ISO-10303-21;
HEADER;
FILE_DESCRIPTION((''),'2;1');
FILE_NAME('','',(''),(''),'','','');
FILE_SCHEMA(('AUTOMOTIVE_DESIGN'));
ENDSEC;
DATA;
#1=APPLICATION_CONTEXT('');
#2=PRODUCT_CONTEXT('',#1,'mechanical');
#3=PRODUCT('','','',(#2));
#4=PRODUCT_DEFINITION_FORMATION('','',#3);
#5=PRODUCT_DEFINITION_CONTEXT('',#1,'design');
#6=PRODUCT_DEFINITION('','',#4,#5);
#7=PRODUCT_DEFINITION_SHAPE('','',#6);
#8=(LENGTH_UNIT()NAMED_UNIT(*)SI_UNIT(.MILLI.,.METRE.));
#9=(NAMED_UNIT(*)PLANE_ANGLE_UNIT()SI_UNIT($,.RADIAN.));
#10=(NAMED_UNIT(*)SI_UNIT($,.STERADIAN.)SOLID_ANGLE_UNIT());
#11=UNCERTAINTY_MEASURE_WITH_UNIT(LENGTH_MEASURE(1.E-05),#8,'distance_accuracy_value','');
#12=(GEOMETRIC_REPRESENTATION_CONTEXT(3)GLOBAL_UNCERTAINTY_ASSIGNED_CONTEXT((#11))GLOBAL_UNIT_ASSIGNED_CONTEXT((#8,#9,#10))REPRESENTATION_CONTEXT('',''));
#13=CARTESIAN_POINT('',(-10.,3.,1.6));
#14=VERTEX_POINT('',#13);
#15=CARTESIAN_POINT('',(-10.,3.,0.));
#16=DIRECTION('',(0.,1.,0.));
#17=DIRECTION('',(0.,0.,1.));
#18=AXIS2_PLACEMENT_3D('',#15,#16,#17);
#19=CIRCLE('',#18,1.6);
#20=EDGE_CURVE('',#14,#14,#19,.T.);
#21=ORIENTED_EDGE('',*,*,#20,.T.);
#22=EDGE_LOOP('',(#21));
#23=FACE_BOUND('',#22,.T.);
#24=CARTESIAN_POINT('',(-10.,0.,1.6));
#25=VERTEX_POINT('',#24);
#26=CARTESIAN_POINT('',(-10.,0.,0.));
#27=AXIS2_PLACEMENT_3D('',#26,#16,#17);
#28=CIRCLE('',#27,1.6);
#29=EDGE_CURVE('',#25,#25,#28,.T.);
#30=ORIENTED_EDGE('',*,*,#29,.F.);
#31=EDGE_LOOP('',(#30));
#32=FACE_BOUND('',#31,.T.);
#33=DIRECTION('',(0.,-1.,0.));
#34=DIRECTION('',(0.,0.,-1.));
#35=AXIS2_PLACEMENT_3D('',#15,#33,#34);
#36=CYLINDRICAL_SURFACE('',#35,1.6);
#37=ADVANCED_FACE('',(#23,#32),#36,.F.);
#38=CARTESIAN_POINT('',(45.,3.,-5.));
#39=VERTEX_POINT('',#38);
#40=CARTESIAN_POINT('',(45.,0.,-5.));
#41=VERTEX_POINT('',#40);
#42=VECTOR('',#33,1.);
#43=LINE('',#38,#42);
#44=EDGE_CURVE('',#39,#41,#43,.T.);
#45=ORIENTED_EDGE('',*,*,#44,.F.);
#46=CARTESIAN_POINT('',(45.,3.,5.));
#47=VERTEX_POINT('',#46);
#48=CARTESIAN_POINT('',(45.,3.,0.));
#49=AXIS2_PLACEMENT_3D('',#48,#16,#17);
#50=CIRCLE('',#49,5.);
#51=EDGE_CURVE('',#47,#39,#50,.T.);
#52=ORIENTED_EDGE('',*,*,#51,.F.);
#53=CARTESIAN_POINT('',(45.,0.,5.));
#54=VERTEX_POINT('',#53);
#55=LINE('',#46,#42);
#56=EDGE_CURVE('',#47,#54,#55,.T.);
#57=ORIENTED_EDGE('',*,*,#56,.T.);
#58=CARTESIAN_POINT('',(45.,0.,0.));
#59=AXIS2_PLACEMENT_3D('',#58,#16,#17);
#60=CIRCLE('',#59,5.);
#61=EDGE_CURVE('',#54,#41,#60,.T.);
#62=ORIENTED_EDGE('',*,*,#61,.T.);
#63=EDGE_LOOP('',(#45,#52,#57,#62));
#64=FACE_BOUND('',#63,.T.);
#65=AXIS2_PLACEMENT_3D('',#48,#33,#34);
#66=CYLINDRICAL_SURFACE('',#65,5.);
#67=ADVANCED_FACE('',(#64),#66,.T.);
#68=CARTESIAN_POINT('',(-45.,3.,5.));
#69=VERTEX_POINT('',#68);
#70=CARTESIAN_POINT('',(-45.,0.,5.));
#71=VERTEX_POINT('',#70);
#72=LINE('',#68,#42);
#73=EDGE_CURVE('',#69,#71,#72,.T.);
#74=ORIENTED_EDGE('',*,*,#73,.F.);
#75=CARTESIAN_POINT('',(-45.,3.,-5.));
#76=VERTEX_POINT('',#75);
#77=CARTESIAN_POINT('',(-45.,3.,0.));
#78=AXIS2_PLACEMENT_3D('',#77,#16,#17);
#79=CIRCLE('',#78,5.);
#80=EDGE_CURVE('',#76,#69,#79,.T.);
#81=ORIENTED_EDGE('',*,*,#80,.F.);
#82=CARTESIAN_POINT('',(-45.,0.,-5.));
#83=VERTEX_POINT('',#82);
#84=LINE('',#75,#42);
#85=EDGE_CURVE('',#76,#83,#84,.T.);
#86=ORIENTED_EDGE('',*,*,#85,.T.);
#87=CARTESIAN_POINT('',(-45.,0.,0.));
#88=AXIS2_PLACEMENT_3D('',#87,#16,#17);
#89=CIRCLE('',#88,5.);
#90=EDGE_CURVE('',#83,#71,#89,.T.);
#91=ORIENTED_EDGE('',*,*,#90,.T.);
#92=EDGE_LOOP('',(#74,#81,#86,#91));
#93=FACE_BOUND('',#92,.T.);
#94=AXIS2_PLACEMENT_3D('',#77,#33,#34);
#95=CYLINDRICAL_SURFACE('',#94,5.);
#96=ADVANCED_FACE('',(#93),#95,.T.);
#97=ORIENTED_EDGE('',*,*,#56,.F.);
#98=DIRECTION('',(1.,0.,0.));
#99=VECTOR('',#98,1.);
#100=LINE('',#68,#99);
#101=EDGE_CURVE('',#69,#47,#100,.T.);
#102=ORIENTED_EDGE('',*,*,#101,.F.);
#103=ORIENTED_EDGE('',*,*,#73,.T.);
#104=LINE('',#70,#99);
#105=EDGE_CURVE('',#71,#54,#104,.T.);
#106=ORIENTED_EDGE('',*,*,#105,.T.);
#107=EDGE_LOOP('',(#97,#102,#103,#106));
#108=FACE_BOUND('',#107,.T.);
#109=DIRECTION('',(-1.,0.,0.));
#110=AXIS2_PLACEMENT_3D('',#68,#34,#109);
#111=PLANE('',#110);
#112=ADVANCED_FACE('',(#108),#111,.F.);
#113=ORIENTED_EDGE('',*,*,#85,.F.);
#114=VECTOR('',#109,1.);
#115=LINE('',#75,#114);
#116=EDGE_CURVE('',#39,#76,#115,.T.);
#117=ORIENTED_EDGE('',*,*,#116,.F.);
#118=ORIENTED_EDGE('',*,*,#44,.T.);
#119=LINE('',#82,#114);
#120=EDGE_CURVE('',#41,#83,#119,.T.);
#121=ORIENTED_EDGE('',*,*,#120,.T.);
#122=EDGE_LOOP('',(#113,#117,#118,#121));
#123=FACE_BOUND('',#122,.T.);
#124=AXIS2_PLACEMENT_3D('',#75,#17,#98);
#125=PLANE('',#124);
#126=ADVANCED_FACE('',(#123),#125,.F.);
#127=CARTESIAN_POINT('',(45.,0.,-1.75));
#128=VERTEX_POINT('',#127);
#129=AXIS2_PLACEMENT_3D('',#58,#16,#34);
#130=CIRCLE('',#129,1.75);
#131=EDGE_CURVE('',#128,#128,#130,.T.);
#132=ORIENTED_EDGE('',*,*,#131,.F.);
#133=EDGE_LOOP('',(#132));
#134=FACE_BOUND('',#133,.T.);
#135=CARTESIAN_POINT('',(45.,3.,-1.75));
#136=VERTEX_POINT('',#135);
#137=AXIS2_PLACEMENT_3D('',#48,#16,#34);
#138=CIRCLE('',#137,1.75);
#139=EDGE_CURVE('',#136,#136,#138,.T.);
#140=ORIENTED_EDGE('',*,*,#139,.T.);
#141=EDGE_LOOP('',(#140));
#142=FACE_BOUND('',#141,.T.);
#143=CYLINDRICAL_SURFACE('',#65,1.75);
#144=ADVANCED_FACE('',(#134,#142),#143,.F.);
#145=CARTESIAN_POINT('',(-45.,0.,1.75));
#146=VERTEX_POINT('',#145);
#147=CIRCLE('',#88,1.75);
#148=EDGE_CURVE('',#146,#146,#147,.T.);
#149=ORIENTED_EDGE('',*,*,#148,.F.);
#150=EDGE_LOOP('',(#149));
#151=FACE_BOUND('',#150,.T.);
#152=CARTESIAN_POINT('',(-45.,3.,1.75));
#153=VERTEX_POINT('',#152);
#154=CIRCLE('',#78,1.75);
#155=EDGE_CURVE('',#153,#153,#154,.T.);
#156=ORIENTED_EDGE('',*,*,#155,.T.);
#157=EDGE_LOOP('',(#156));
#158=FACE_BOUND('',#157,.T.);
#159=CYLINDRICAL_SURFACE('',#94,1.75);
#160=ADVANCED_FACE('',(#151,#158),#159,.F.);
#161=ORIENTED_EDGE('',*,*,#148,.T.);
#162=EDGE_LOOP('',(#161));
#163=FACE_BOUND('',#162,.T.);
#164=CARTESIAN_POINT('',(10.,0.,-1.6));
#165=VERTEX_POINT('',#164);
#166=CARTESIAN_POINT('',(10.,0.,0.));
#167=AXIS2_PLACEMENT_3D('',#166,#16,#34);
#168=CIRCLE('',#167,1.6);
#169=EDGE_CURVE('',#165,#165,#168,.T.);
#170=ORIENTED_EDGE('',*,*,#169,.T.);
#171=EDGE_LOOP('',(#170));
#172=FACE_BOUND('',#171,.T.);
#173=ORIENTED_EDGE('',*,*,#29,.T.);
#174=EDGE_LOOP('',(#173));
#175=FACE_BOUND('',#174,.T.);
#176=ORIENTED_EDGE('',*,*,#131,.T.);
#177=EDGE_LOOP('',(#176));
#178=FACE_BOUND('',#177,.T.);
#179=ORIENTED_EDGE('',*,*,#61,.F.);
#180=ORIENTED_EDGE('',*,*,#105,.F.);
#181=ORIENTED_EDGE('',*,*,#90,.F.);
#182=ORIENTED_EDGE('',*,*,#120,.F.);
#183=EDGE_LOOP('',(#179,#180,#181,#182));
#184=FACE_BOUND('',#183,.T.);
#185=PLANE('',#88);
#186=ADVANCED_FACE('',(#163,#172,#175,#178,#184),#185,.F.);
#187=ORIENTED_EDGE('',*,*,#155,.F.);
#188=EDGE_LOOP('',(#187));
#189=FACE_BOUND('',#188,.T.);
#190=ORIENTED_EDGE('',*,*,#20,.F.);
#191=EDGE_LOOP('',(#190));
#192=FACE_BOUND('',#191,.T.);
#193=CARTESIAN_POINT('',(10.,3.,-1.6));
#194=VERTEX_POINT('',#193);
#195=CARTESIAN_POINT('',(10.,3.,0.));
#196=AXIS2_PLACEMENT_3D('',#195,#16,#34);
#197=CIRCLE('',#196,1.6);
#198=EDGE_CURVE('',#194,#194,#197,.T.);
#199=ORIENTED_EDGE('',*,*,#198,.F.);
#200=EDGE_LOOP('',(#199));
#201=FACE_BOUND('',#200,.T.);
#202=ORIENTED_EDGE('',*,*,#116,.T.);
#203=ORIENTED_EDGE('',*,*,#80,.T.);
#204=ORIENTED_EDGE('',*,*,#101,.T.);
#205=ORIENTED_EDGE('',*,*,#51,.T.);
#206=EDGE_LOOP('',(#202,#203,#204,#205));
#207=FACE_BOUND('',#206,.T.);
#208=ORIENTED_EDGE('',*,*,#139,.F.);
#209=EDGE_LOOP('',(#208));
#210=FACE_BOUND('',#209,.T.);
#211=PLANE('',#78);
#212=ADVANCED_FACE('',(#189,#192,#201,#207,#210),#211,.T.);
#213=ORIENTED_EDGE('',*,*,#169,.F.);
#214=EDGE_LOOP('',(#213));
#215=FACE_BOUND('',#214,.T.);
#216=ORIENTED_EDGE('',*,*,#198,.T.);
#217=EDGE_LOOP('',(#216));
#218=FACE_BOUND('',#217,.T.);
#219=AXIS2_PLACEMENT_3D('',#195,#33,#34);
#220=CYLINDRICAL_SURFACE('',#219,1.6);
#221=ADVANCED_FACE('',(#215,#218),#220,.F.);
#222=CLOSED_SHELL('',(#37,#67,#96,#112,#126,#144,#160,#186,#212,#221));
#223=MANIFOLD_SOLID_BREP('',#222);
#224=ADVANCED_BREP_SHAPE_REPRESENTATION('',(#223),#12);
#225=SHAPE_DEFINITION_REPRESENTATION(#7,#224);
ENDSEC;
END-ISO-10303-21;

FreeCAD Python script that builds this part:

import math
import FreeCAD as App
import Part
import Sketcher

V = App.Vector

doc = App.newDocument("Part")
body = doc.addObject("PartDesign::Body", "Body")

sketch1 = body.newObject("Sketcher::SketchObject", "Sketch")
sketch1.AttachmentSupport = (doc.getObject("XZ_Plane"), [""])
sketch1.MapMode = "FlatFace"
sketch1.addGeometry([
    Part.LineSegment(V(45, -5, 0), V(-45, -5, 0)),
    Part.ArcOfCircle(Part.Circle(V(-45, 0, 0), V(0, 0, 1), 5), math.radians(90), math.radians(270)),
    Part.LineSegment(V(-45, 5, 0), V(45, 5, 0)),
    Part.ArcOfCircle(Part.Circle(V(45, 0, 0), V(0, 0, 1), 5), math.radians(-90), math.radians(90)),
    Part.Circle(V(45, 0, 0), V(0, 0, 1), 1.8),
    Part.Circle(V(10, 0, 0), V(0, 0, 1), 1.6),
    Part.Circle(V(-10, 0, 0), V(0, 0, 1), 1.6),
    Part.Circle(V(-45, 0, 0), V(0, 0, 1), 1.8),
], False)
sketch1.addConstraint([
    Sketcher.Constraint("Tangent", 0, 2, 1, 2),
    Sketcher.Constraint("Tangent", 1, 1, 2, 1),
    Sketcher.Constraint("Tangent", 2, 2, 3, 2),
    Sketcher.Constraint("Tangent", 3, 1, 0, 1),
    Sketcher.Constraint("Horizontal", 0),
    Sketcher.Constraint("Horizontal", 2),
    Sketcher.Constraint("Coincident", 4, 3, 3, 3),
    Sketcher.Constraint("Coincident", 7, 3, 1, 3),
    Sketcher.Constraint("Equal", 5, 6),
    Sketcher.Constraint("Equal", 4, 7),
    Sketcher.Constraint("Symmetric", 1, 3, 3, 3, -1, 1),
    Sketcher.Constraint("Symmetric", 5, 3, 6, 3, -1, 1),
    Sketcher.Constraint("PointOnObject", 5, 3, -1),
    Sketcher.Constraint("Radius", 1, 5.0),
    Sketcher.Constraint("Diameter", 4, 3.5),
    Sketcher.Constraint("Diameter", 5, 3.2),
    Sketcher.Constraint("DistanceX", 0, 2, 0, 1, 90.0),
    Sketcher.Constraint("DistanceX", -1, 1, 5, 3, 10.0),
])
pad1 = body.newObject("PartDesign::Pad", "Pad")
pad1.Profile = sketch1
pad1.Length = 3
pad1.Reversed = True

doc.recompute()
